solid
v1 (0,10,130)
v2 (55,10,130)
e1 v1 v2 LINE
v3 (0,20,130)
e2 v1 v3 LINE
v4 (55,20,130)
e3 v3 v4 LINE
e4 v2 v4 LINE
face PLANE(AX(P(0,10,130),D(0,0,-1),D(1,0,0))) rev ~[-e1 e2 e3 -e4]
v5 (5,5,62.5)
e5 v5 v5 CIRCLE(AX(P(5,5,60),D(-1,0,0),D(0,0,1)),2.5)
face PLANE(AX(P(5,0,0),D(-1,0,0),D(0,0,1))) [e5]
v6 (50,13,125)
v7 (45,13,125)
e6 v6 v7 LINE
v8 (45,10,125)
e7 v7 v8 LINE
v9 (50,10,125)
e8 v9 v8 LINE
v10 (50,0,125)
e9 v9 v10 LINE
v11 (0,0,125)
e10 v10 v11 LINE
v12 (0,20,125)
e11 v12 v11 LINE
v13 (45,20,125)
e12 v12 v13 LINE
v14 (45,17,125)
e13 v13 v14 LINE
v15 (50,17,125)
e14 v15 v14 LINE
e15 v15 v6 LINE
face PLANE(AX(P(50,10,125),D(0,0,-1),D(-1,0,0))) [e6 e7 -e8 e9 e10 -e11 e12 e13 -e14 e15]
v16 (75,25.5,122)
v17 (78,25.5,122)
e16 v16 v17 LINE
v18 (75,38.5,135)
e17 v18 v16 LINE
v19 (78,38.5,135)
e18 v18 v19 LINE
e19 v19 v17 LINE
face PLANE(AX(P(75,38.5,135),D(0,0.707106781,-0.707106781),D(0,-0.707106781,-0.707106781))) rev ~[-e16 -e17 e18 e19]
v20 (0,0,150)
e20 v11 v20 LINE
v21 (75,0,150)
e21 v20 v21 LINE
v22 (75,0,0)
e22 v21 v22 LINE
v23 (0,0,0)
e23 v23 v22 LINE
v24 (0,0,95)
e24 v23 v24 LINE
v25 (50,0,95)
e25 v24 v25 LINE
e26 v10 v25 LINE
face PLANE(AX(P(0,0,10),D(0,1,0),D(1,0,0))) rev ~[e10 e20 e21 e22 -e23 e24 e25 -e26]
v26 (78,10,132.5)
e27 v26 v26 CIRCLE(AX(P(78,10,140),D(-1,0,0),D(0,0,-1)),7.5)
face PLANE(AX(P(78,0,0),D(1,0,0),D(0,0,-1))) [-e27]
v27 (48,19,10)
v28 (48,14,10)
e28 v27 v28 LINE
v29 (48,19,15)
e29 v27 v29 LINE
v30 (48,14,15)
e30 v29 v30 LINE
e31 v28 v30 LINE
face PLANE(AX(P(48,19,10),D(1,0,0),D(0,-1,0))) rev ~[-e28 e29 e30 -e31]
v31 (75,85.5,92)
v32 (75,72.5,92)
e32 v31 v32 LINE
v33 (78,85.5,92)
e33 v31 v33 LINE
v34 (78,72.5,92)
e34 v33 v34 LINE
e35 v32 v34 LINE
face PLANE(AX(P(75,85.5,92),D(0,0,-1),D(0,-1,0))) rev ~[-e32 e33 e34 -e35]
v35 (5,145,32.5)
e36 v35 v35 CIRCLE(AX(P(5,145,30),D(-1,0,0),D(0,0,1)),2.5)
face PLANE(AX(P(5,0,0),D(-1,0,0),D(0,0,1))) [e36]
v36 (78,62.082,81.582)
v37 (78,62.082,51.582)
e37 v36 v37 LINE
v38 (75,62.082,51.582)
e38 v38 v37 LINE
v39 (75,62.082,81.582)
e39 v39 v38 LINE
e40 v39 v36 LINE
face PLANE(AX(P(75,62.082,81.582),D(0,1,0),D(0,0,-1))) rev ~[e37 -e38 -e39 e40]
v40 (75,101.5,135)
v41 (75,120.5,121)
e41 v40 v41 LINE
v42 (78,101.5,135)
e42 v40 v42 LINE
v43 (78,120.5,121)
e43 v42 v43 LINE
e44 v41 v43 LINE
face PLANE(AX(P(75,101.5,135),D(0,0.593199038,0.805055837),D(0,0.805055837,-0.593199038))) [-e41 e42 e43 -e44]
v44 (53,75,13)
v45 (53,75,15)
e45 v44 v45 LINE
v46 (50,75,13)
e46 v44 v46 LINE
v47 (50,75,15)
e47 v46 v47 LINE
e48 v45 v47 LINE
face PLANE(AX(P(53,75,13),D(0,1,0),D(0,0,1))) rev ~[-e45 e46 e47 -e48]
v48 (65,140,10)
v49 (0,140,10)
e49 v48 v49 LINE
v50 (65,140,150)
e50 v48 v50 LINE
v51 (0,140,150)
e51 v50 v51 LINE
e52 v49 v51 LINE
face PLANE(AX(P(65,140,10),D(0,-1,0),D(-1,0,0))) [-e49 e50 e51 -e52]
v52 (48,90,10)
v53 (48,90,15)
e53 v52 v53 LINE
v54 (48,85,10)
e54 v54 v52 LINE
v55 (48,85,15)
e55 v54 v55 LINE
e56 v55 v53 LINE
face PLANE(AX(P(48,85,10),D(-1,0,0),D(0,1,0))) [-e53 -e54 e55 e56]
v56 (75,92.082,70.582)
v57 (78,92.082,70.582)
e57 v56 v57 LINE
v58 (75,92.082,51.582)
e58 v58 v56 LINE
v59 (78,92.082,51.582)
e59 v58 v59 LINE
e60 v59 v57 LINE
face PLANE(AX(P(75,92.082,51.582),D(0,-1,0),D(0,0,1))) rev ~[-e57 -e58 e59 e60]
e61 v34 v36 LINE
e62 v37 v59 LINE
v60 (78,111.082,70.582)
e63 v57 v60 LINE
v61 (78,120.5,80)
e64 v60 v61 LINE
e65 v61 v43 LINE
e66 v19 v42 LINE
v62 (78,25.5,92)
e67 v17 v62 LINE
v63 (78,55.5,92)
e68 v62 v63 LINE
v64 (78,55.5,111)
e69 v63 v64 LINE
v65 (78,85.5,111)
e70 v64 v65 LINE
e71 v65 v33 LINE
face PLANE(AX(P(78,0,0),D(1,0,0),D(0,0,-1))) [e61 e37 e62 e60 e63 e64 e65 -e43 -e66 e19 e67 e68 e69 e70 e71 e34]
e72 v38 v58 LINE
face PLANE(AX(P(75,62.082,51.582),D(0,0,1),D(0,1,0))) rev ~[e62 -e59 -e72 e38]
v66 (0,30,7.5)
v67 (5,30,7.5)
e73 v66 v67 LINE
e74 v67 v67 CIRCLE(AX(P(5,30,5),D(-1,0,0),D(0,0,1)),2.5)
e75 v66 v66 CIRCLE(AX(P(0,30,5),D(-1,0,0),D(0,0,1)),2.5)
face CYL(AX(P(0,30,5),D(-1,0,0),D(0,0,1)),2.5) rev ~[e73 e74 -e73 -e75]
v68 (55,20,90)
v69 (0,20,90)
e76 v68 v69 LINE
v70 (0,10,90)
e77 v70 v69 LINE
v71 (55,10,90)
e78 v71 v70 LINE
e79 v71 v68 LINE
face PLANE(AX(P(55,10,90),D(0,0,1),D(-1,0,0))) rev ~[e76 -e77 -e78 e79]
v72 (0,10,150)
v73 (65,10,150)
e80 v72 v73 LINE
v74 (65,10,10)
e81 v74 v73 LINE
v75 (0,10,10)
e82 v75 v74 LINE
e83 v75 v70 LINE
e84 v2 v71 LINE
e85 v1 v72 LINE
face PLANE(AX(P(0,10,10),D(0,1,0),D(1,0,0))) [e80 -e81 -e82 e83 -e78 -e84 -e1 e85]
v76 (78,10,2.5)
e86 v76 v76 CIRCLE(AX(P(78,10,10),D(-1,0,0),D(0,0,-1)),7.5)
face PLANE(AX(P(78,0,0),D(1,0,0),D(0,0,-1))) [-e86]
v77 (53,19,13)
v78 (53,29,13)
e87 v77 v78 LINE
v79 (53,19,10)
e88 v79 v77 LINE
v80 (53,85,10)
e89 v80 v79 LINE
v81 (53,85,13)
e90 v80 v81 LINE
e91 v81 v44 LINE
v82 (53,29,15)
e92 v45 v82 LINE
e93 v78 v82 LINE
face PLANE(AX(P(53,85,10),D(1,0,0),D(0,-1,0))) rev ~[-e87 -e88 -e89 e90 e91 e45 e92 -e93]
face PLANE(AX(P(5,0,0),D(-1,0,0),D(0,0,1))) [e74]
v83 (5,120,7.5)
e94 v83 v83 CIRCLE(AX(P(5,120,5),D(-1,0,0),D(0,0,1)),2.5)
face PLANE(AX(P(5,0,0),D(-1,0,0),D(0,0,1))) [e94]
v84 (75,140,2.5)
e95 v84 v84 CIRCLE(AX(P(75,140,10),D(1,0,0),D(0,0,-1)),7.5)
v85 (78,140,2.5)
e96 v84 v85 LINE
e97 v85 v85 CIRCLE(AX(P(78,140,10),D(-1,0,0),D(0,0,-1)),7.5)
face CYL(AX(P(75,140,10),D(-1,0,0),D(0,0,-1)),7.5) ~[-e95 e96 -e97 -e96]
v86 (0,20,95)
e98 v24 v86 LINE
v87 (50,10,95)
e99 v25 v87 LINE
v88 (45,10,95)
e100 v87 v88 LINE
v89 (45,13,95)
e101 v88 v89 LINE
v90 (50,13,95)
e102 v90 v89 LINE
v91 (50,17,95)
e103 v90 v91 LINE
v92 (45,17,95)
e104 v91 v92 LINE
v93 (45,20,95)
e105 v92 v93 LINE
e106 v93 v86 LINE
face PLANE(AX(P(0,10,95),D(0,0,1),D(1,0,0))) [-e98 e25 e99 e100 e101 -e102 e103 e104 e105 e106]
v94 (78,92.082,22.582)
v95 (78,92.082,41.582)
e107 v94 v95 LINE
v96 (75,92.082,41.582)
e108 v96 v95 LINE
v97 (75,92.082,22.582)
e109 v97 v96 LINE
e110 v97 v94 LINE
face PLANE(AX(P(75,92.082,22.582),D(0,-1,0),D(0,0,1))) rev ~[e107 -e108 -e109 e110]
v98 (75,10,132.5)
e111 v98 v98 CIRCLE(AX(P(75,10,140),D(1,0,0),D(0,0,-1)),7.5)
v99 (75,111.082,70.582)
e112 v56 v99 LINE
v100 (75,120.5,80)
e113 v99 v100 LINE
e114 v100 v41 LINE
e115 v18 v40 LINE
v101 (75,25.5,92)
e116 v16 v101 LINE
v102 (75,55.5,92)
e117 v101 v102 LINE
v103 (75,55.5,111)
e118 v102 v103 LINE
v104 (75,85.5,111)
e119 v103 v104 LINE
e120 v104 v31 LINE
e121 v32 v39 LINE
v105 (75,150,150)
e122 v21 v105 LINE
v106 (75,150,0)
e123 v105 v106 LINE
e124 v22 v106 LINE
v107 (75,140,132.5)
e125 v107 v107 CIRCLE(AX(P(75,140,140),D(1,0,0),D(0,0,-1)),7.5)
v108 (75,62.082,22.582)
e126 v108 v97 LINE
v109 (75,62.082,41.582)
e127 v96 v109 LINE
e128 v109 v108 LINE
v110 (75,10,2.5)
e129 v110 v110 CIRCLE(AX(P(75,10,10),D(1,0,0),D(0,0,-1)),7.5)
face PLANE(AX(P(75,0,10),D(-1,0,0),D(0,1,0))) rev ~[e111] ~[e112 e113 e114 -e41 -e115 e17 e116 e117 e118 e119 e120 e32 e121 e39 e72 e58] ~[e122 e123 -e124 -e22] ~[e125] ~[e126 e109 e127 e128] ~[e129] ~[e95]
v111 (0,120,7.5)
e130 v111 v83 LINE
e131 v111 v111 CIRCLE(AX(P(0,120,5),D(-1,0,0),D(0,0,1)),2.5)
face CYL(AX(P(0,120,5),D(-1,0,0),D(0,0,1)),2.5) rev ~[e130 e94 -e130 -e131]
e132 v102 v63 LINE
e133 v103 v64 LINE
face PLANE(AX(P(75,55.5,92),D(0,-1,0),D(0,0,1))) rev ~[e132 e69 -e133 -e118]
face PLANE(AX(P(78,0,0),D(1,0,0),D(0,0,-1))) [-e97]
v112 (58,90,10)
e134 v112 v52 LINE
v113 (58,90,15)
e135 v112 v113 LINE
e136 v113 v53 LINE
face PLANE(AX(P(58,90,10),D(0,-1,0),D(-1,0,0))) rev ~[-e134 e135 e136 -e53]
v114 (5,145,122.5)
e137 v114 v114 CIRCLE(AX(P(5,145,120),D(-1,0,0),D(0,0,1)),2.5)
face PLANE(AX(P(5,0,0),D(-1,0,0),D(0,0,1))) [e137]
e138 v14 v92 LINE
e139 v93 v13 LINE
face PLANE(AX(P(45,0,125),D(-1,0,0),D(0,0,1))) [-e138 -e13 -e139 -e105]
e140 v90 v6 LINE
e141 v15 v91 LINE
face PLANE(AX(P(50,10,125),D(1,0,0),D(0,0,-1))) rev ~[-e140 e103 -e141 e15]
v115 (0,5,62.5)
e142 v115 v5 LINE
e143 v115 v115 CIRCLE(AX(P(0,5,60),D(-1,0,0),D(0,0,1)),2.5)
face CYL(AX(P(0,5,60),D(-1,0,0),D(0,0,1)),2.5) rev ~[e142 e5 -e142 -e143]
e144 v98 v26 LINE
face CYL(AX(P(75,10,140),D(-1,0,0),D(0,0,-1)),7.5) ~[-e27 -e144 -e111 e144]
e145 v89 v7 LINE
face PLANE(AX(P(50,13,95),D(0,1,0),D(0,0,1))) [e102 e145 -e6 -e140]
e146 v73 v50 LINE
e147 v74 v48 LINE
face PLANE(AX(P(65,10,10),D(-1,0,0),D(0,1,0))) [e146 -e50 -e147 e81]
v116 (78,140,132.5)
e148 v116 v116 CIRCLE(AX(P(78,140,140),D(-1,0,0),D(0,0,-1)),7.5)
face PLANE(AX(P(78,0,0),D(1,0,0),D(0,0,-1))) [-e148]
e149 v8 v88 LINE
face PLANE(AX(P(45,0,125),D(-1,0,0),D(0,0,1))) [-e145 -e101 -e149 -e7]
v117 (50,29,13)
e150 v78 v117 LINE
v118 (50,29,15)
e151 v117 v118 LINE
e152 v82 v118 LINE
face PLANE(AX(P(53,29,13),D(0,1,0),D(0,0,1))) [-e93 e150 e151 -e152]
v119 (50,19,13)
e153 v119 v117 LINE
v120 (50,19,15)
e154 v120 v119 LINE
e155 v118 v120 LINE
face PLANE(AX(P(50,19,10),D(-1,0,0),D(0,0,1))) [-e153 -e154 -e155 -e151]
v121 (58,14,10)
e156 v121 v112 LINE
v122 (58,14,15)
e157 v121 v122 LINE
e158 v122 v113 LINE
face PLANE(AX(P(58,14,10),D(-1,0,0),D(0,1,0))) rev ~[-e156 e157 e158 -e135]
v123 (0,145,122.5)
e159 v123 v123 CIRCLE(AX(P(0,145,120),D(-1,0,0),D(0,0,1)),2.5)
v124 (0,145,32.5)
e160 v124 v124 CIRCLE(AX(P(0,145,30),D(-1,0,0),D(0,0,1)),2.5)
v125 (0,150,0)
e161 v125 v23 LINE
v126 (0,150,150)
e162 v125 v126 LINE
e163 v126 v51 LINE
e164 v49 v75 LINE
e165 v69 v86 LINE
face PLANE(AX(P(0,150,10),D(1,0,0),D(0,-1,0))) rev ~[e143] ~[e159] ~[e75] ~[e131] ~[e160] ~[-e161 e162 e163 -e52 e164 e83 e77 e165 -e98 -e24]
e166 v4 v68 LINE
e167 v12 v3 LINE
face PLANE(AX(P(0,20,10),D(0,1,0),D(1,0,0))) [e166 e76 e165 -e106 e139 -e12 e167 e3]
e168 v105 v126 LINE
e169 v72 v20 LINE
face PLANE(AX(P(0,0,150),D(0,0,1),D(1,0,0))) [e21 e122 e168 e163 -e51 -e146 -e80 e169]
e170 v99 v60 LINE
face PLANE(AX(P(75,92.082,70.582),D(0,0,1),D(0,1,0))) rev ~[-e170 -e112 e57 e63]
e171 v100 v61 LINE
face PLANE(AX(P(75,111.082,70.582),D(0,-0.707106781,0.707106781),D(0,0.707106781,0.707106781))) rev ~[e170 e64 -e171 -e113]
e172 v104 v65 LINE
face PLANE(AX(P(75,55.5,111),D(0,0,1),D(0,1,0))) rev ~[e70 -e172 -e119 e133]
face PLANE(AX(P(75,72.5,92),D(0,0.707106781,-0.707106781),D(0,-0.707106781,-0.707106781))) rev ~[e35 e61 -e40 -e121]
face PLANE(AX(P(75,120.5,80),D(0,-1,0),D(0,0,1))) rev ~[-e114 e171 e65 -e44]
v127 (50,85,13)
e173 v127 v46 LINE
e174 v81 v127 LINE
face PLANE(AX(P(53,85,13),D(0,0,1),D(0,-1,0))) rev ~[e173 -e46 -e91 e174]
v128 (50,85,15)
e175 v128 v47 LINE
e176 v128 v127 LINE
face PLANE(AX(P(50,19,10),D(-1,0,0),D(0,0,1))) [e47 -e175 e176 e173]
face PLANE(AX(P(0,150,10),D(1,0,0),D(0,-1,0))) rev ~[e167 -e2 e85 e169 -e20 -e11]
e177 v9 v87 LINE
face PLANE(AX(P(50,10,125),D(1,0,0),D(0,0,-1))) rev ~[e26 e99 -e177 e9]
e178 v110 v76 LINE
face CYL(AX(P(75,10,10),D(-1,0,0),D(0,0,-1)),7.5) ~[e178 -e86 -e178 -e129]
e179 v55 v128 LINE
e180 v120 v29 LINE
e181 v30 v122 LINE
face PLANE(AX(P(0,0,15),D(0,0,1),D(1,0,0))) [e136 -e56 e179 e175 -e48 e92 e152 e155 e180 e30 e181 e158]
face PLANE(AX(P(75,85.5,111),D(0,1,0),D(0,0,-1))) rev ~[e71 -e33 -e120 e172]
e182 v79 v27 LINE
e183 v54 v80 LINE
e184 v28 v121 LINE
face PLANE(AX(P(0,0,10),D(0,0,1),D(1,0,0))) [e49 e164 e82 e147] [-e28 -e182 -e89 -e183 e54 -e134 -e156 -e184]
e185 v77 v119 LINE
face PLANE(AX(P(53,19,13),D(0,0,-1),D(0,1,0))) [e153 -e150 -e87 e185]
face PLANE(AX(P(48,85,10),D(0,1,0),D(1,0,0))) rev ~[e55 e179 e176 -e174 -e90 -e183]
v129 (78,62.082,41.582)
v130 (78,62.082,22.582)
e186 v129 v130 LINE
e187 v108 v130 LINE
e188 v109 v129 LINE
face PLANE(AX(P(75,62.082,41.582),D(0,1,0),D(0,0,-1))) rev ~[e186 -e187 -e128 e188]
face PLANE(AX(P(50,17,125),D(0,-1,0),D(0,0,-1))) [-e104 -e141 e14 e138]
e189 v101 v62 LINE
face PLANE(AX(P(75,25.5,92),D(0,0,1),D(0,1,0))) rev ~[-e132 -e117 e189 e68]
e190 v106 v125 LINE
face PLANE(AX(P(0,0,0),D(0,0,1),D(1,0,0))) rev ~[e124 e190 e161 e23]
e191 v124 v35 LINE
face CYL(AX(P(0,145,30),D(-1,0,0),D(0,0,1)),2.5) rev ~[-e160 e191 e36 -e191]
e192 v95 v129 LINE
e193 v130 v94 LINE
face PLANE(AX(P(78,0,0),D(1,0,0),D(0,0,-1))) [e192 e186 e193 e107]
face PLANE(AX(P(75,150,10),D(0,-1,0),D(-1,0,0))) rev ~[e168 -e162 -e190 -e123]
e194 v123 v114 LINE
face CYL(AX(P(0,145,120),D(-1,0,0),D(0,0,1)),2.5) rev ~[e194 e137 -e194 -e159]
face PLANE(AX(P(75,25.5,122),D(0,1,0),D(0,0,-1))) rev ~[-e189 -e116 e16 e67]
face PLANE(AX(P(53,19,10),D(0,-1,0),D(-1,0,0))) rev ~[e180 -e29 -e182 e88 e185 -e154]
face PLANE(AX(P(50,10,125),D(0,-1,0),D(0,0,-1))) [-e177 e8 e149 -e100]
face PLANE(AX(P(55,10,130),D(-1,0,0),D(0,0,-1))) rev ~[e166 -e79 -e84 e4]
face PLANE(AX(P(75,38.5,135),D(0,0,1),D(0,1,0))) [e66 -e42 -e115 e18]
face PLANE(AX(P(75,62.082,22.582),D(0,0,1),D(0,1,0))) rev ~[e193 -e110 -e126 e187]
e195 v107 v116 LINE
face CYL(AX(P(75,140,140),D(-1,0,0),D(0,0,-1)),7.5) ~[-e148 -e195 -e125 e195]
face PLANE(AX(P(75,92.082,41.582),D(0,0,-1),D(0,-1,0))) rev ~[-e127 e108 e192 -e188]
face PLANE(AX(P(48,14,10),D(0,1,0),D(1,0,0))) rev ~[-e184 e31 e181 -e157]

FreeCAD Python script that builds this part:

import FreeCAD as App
import Part
import Sketcher
from FreeCAD import Vector

doc = App.newDocument("Part")
body = doc.addObject("PartDesign::Body", "Body")

# Sketch on XY plane
sketch1 = body.newObject("Sketcher::SketchObject", "Sketch")
sketch1.AttachmentSupport = (doc.getObject("XY_Plane"), [""])
sketch1.MapMode = "FlatFace"
sketch1.addGeometry(Part.LineSegment(Vector(0, 150, 0), Vector(0, 0, 0)), False)
sketch1.addGeometry(Part.LineSegment(Vector(0, 0, 0), Vector(75, 0, 0)), False)
sketch1.addGeometry(Part.LineSegment(Vector(75, 0, 0), Vector(75, 150, 0)), False)
sketch1.addGeometry(Part.LineSegment(Vector(75, 150, 0), Vector(0, 150, 0)), False)
sketch1.addConstraint(Sketcher.Constraint("Coincident", 0, 2, 1, 1))
sketch1.addConstraint(Sketcher.Constraint("Coincident", 1, 2, 2, 1))
sketch1.addConstraint(Sketcher.Constraint("Coincident", 2, 2, 3, 1))
sketch1.addConstraint(Sketcher.Constraint("Coincident", 3, 2, 0, 1))
sketch1.addConstraint(Sketcher.Constraint("Vertical", 0))
sketch1.addConstraint(Sketcher.Constraint("Horizontal", 1))
sketch1.addConstraint(Sketcher.Constraint("Vertical", 2))
sketch1.addConstraint(Sketcher.Constraint("Horizontal", 3))
sketch1.addConstraint(Sketcher.Constraint("Coincident", 0, 2, -1, 1))
sketch1.addConstraint(Sketcher.Constraint("DistanceX", 1, 1, 1, 2, 75.0))
sketch1.addConstraint(Sketcher.Constraint("DistanceY", 0, 2, 0, 1, 150.0))
pad1 = body.newObject("PartDesign::Pad", "Pad")
pad1.Profile = sketch1
pad1.Length = 10

# Sketch on XY plane
sketch2 = body.newObject("Sketcher::SketchObject", "Sketch001")
sketch2.AttachmentSupport = (doc.getObject("XY_Plane"), [""])
sketch2.MapMode = "FlatFace"
sketch2.AttachmentOffset = App.Placement(Vector(0, 0, 10), App.Rotation())
sketch2.addGeometry(Part.LineSegment(Vector(48, 90, 0), Vector(48, 85, 0)), False)
sketch2.addGeometry(Part.LineSegment(Vector(48, 85, 0), Vector(53, 85, 0)), False)
sketch2.addGeometry(Part.LineSegment(Vector(53, 85, 0), Vector(53, 19, 0)), False)
sketch2.addGeometry(Part.LineSegment(Vector(53, 19, 0), Vector(48, 19, 0)), False)
sketch2.addGeometry(Part.LineSegment(Vector(48, 19, 0), Vector(48, 14, 0)), False)
sketch2.addGeometry(Part.LineSegment(Vector(48, 14, 0), Vector(58, 14, 0)), False)
sketch2.addGeometry(Part.LineSegment(Vector(58, 14, 0), Vector(58, 90, 0)), False)
sketch2.addGeometry(Part.LineSegment(Vector(58, 90, 0), Vector(48, 90, 0)), False)
sketch2.addConstraint(Sketcher.Constraint("Coincident", 0, 2, 1, 1))
sketch2.addConstraint(Sketcher.Constraint("Coincident", 1, 2, 2, 1))
sketch2.addConstraint(Sketcher.Constraint("Coincident", 2, 2, 3, 1))
sketch2.addConstraint(Sketcher.Constraint("Coincident", 3, 2, 4, 1))
sketch2.addConstraint(Sketcher.Constraint("Coincident", 4, 2, 5, 1))
sketch2.addConstraint(Sketcher.Constraint("Coincident", 5, 2, 6, 1))
sketch2.addConstraint(Sketcher.Constraint("Coincident", 6, 2, 7, 1))
sketch2.addConstraint(Sketcher.Constraint("Coincident", 7, 2, 0, 1))
sketch2.addConstraint(Sketcher.Constraint("Vertical", 0))
sketch2.addConstraint(Sketcher.Constraint("Horizontal", 1))
sketch2.addConstraint(Sketcher.Constraint("Vertical", 2))
sketch2.addConstraint(Sketcher.Constraint("Horizontal", 3))
sketch2.addConstraint(Sketcher.Constraint("Vertical", 4))
sketch2.addConstraint(Sketcher.Constraint("Horizontal", 5))
sketch2.addConstraint(Sketcher.Constraint("Vertical", 6))
sketch2.addConstraint(Sketcher.Constraint("Horizontal", 7))
sketch2.addConstraint(Sketcher.Constraint("Vertical", 0, 2, 3, 2))
sketch2.addConstraint(Sketcher.Constraint("Equal", 3, 0))
sketch2.addConstraint(Sketcher.Constraint("Equal", 0, 4))
sketch2.addConstraint(Sketcher.Constraint("DistanceX", 1, 1, 1, 2, 5.0))
sketch2.addConstraint(Sketcher.Constraint("DistanceX", 5, 1, 5, 2, 10.0))
sketch2.addConstraint(Sketcher.Constraint("DistanceY", 2, 2, 2, 1, 66.0))
sketch2.addConstraint(Sketcher.Constraint("DistanceX", -1, 1, 1, 2, 53.0))
sketch2.addConstraint(Sketcher.Constraint("DistanceY", -1, 1, 0, 2, 85.0))
pad2 = body.newObject("PartDesign::Pad", "Pad001")
pad2.Profile = sketch2
pad2.Length = 5

# Sketch on YZ plane
sketch3 = body.newObject("Sketcher::SketchObject", "Sketch002")
sketch3.AttachmentSupport = (doc.getObject("YZ_Plane"), [""])
sketch3.MapMode = "FlatFace"
sketch3.AttachmentOffset = App.Placement(Vector(0, 0, 53), App.Rotation())
sketch3.addGeometry(Part.LineSegment(Vector(19, 15, 0), Vector(29, 15, 0)), False)
sketch3.addGeometry(Part.LineSegment(Vector(29, 15, 0), Vector(29, 13, 0)), False)
sketch3.addGeometry(Part.LineSegment(Vector(29, 13, 0), Vector(19, 13, 0)), False)
sketch3.addGeometry(Part.LineSegment(Vector(19, 13, 0), Vector(19, 15, 0)), False)
sketch3.addGeometry(Part.LineSegment(Vector(75, 15, 0), Vector(85, 15, 0)), False)
sketch3.addGeometry(Part.LineSegment(Vector(85, 15, 0), Vector(85, 13, 0)), False)
sketch3.addGeometry(Part.LineSegment(Vector(85, 13, 0), Vector(75, 13, 0)), False)
sketch3.addGeometry(Part.LineSegment(Vector(75, 13, 0), Vector(75, 15, 0)), False)
sketch3.addConstraint(Sketcher.Constraint("Coincident", 0, 2, 1, 1))
sketch3.addConstraint(Sketcher.Constraint("Coincident", 1, 2, 2, 1))
sketch3.addConstraint(Sketcher.Constraint("Coincident", 2, 2, 3, 1))
sketch3.addConstraint(Sketcher.Constraint("Coincident", 3, 2, 0, 1))
sketch3.addConstraint(Sketcher.Constraint("Coincident", 4, 2, 5, 1))
sketch3.addConstraint(Sketcher.Constraint("Coincident", 5, 2, 6, 1))
sketch3.addConstraint(Sketcher.Constraint("Coincident", 6, 2, 7, 1))
sketch3.addConstraint(Sketcher.Constraint("Coincident", 7, 2, 4, 1))
sketch3.addConstraint(Sketcher.Constraint("Horizontal", 0))
sketch3.addConstraint(Sketcher.Constraint("Vertical", 1))
sketch3.addConstraint(Sketcher.Constraint("Horizontal", 2))
sketch3.addConstraint(Sketcher.Constraint("Vertical", 3))
sketch3.addConstraint(Sketcher.Constraint("Horizontal", 4))
sketch3.addConstraint(Sketcher.Constraint("Vertical", 5))
sketch3.addConstraint(Sketcher.Constraint("Horizontal", 6))
sketch3.addConstraint(Sketcher.Constraint("Vertical", 7))
sketch3.addConstraint(Sketcher.Constraint("Horizontal", 3, 2, 4, 2))
sketch3.addConstraint(Sketcher.Constraint("Horizontal", 2, 2, 5, 2))
sketch3.addConstraint(Sketcher.Constraint("Equal", 2, 4))
sketch3.addConstraint(Sketcher.Constraint("DistanceX", 0, 1, 0, 2, 10.0))
sketch3.addConstraint(Sketcher.Constraint("DistanceY", 1, 2, 1, 1, 2.0))
sketch3.addConstraint(Sketcher.Constraint("DistanceX", -1, 1, 0, 2, 29.0))
sketch3.addConstraint(Sketcher.Constraint("DistanceY", -1, 1, 0, 2, 15.0))
sketch3.addConstraint(Sketcher.Constraint("DistanceX", -1, 1, 4, 2, 85.0))
pad3 = body.newObject("PartDesign::Pad", "Pad002")
pad3.Profile = sketch3
pad3.Length = 3
pad3.Reversed = True

# Sketch on XY plane
sketch4 = body.newObject("Sketcher::SketchObject", "Sketch003")
sketch4.AttachmentSupport = (doc.getObject("XY_Plane"), [""])
sketch4.MapMode = "FlatFace"
sketch4.AttachmentOffset = App.Placement(Vector(0, 0, 10), App.Rotation())
sketch4.addGeometry(Part.LineSegment(Vector(75, 150, 0), Vector(0, 150, 0)), False)
sketch4.addGeometry(Part.LineSegment(Vector(0, 150, 0), Vector(0, 140, 0)), False)
sketch4.addGeometry(Part.LineSegment(Vector(0, 140, 0), Vector(65, 140, 0)), False)
sketch4.addGeometry(Part.LineSegment(Vector(65, 140, 0), Vector(65, 10, 0)), False)
sketch4.addGeometry(Part.LineSegment(Vector(65, 10, 0), Vector(0, 10, 0)), False)
sketch4.addGeometry(Part.LineSegment(Vector(0, 10, 0), Vector(0, 0, 0)), False)
sketch4.addGeometry(Part.LineSegment(Vector(0, 0, 0), Vector(75, 0, 0)), False)
sketch4.addGeometry(Part.LineSegment(Vector(75, 0, 0), Vector(75, 150, 0)), False)
sketch4.addConstraint(Sketcher.Constraint("Coincident", 0, 2, 1, 1))
sketch4.addConstraint(Sketcher.Constraint("Coincident", 1, 2, 2, 1))
sketch4.addConstraint(Sketcher.Constraint("Coincident", 2, 2, 3, 1))
sketch4.addConstraint(Sketcher.Constraint("Coincident", 3, 2, 4, 1))
sketch4.addConstraint(Sketcher.Constraint("Coincident", 4, 2, 5, 1))
sketch4.addConstraint(Sketcher.Constraint("Coincident", 5, 2, 6, 1))
sketch4.addConstraint(Sketcher.Constraint("Coincident", 6, 2, 7, 1))
sketch4.addConstraint(Sketcher.Constraint("Coincident", 7, 2, 0, 1))
sketch4.addConstraint(Sketcher.Constraint("Horizontal", 0))
sketch4.addConstraint(Sketcher.Constraint("Vertical", 1))
sketch4.addConstraint(Sketcher.Constraint("Horizontal", 2))
sketch4.addConstraint(Sketcher.Constraint("Vertical", 3))
sketch4.addConstraint(Sketcher.Constraint("Horizontal", 4))
sketch4.addConstraint(Sketcher.Constraint("Vertical", 5))
sketch4.addConstraint(Sketcher.Constraint("Horizontal", 6))
sketch4.addConstraint(Sketcher.Constraint("Vertical", 7))
sketch4.addConstraint(Sketcher.Constraint("Coincident", 5, 2, -1, 1))
sketch4.addConstraint(Sketcher.Constraint("PointOnObject", 0, 2, -2))
sketch4.addConstraint(Sketcher.Constraint("Equal", 1, 5))
sketch4.addConstraint(Sketcher.Constraint("DistanceY", 1, 2, 1, 1, 10.0))
sketch4.addConstraint(Sketcher.Constraint("DistanceX", 3, 2, 6, 2, 10.0))
sketch4.addConstraint(Sketcher.Constraint("DistanceX", 0, 2, 0, 1, 75.0))
sketch4.addConstraint(Sketcher.Constraint("DistanceY", 3, 2, 3, 1, 130.0))
pad4 = body.newObject("PartDesign::Pad", "Pad003")
pad4.Profile = sketch4
pad4.Length = 140

# Sketch on XZ plane
sketch5 = body.newObject("Sketcher::SketchObject", "Sketch004")
sketch5.AttachmentSupport = (doc.getObject("XZ_Plane"), [""])
sketch5.MapMode = "FlatFace"
sketch5.AttachmentOffset = App.Placement(Vector(0, 0, -10), App.Rotation())
sketch5.addGeometry(Part.LineSegment(Vector(55, 90, 0), Vector(0, 90, 0)), False)
sketch5.addGeometry(Part.LineSegment(Vector(0, 90, 0), Vector(0, 95, 0)), False)
sketch5.addGeometry(Part.LineSegment(Vector(0, 95, 0), Vector(50, 95, 0)), False)
sketch5.addGeometry(Part.LineSegment(Vector(50, 95, 0), Vector(50, 125, 0)), False)
sketch5.addGeometry(Part.LineSegment(Vector(50, 125, 0), Vector(0, 125, 0)), False)
sketch5.addGeometry(Part.LineSegment(Vector(0, 125, 0), Vector(0, 130, 0)), False)
sketch5.addGeometry(Part.LineSegment(Vector(0, 130, 0), Vector(55, 130, 0)), False)
sketch5.addGeometry(Part.LineSegment(Vector(55, 130, 0), Vector(55, 90, 0)), False)
sketch5.addConstraint(Sketcher.Constraint("Coincident", 0, 2, 1, 1))
sketch5.addConstraint(Sketcher.Constraint("Coincident", 1, 2, 2, 1))
sketch5.addConstraint(Sketcher.Constraint("Coincident", 2, 2, 3, 1))
sketch5.addConstraint(Sketcher.Constraint("Coincident", 3, 2, 4, 1))
sketch5.addConstraint(Sketcher.Constraint("Coincident", 4, 2, 5, 1))
sketch5.addConstraint(Sketcher.Constraint("Coincident", 5, 2, 6, 1))
sketch5.addConstraint(Sketcher.Constraint("Coincident", 6, 2, 7, 1))
sketch5.addConstraint(Sketcher.Constraint("Coincident", 7, 2, 0, 1))
sketch5.addConstraint(Sketcher.Constraint("Horizontal", 0))
sketch5.addConstraint(Sketcher.Constraint("Vertical", 1))
sketch5.addConstraint(Sketcher.Constraint("Horizontal", 2))
sketch5.addConstraint(Sketcher.Constraint("Vertical", 3))
sketch5.addConstraint(Sketcher.Constraint("Horizontal", 4))
sketch5.addConstraint(Sketcher.Constraint("Vertical", 5))
sketch5.addConstraint(Sketcher.Constraint("Horizontal", 6))
sketch5.addConstraint(Sketcher.Constraint("Vertical", 7))
sketch5.addConstraint(Sketcher.Constraint("PointOnObject", 0, 2, -2))
sketch5.addConstraint(Sketcher.Constraint("PointOnObject", 4, 2, -2))
sketch5.addConstraint(Sketcher.Constraint("Equal", 1, 5))
sketch5.addConstraint(Sketcher.Constraint("DistanceX", 0, 2, 0, 1, 55.0))
sketch5.addConstraint(Sketcher.Constraint("DistanceX", 2, 1, 2, 2, 50.0))
sketch5.addConstraint(Sketcher.Constraint("DistanceY", 1, 1, 1, 2, 5.0))
sketch5.addConstraint(Sketcher.Constraint("DistanceY", 3, 1, 3, 2, 30.0))
sketch5.addConstraint(Sketcher.Constraint("DistanceY", -1, 1, 0, 2, 90.0))
pad5 = body.newObject("PartDesign::Pad", "Pad004")
pad5.Profile = sketch5
pad5.Length = 10
pad5.Reversed = True

# Sketch on XZ plane
sketch6 = body.newObject("Sketcher::SketchObject", "Sketch005")
sketch6.AttachmentSupport = (doc.getObject("XZ_Plane"), [""])
sketch6.MapMode = "FlatFace"
sketch6.AttachmentOffset = App.Placement(Vector(0, 0, -10), App.Rotation())
sketch6.addGeometry(Part.LineSegment(Vector(0, 125, 0), Vector(50, 125, 0)), False)
sketch6.addGeometry(Part.LineSegment(Vector(50, 125, 0), Vector(50, 95, 0)), False)
sketch6.addGeometry(Part.LineSegment(Vector(50, 95, 0), Vector(0, 95, 0)), False)
sketch6.addGeometry(Part.LineSegment(Vector(0, 95, 0), Vector(0, 125, 0)), False)
sketch6.addConstraint(Sketcher.Constraint("Coincident", 0, 2, 1, 1))
sketch6.addConstraint(Sketcher.Constraint("Coincident", 1, 2, 2, 1))
sketch6.addConstraint(Sketcher.Constraint("Coincident", 2, 2, 3, 1))
sketch6.addConstraint(Sketcher.Constraint("Coincident", 3, 2, 0, 1))
sketch6.addConstraint(Sketcher.Constraint("Horizontal", 0))
sketch6.addConstraint(Sketcher.Constraint("Vertical", 1))
sketch6.addConstraint(Sketcher.Constraint("Horizontal", 2))
sketch6.addConstraint(Sketcher.Constraint("Vertical", 3))
sketch6.addConstraint(Sketcher.Constraint("PointOnObject", 2, 2, -2))
sketch6.addConstraint(Sketcher.Constraint("DistanceX", 0, 1, 0, 2, 50.0))
sketch6.addConstraint(Sketcher.Constraint("DistanceY", 1, 2, 1, 1, 30.0))
sketch6.addConstraint(Sketcher.Constraint("DistanceY", -1, 1, 0, 2, 125.0))
pocket1 = body.newObject("PartDesign::Pocket", "Pocket")
pocket1.Profile = sketch6
pocket1.Length = 10
pocket1.Reversed = True

# Sketch on YZ plane
sketch7 = body.newObject("Sketcher::SketchObject", "Sketch006")
sketch7.AttachmentSupport = (doc.getObject("YZ_Plane"), [""])
sketch7.MapMode = "FlatFace"
sketch7.AttachmentOffset = App.Placement(Vector(0, 0, 50), App.Rotation())
sketch7.addGeometry(Part.LineSegment(Vector(13, 95, 0), Vector(10, 95, 0)), False)
sketch7.addGeometry(Part.LineSegment(Vector(10, 95, 0), Vector(10, 125, 0)), False)
sketch7.addGeometry(Part.LineSegment(Vector(10, 125, 0), Vector(13, 125, 0)), False)
sketch7.addGeometry(Part.LineSegment(Vector(13, 125, 0), Vector(13, 95, 0)), False)
sketch7.addGeometry(Part.LineSegment(Vector(20, 95, 0), Vector(17, 95, 0)), False)
sketch7.addGeometry(Part.LineSegment(Vector(17, 95, 0), Vector(17, 125, 0)), False)
sketch7.addGeometry(Part.LineSegment(Vector(17, 125, 0), Vector(20, 125, 0)), False)
sketch7.addGeometry(Part.LineSegment(Vector(20, 125, 0), Vector(20, 95, 0)), False)
sketch7.addConstraint(Sketcher.Constraint("Coincident", 0, 2, 1, 1))
sketch7.addConstraint(Sketcher.Constraint("Coincident", 1, 2, 2, 1))
sketch7.addConstraint(Sketcher.Constraint("Coincident", 2, 2, 3, 1))
sketch7.addConstraint(Sketcher.Constraint("Coincident", 3, 2, 0, 1))
sketch7.addConstraint(Sketcher.Constraint("Coincident", 4, 2, 5, 1))
sketch7.addConstraint(Sketcher.Constraint("Coincident", 5, 2, 6, 1))
sketch7.addConstraint(Sketcher.Constraint("Coincident", 6, 2, 7, 1))
sketch7.addConstraint(Sketcher.Constraint("Coincident", 7, 2, 4, 1))
sketch7.addConstraint(Sketcher.Constraint("Horizontal", 0))
sketch7.addConstraint(Sketcher.Constraint("Vertical", 1))
sketch7.addConstraint(Sketcher.Constraint("Horizontal", 2))
sketch7.addConstraint(Sketcher.Constraint("Vertical", 3))
sketch7.addConstraint(Sketcher.Constraint("Horizontal", 4))
sketch7.addConstraint(Sketcher.Constraint("Vertical", 5))
sketch7.addConstraint(Sketcher.Constraint("Horizontal", 6))
sketch7.addConstraint(Sketcher.Constraint("Vertical", 7))
sketch7.addConstraint(Sketcher.Constraint("Horizontal", 3, 2, 4, 2))
sketch7.addConstraint(Sketcher.Constraint("Horizontal", 2, 2, 5, 2))
sketch7.addConstraint(Sketcher.Constraint("Equal", 2, 4))
sketch7.addConstraint(Sketcher.Constraint("DistanceX", 0, 2, 0, 1, 3.0))
sketch7.addConstraint(Sketcher.Constraint("DistanceY", 1, 1, 1, 2, 30.0))
sketch7.addConstraint(Sketcher.Constraint("DistanceX", -1, 1, 0, 2, 10.0))
sketch7.addConstraint(Sketcher.Constraint("DistanceY", -1, 1, 0, 2, 95.0))
sketch7.addConstraint(Sketcher.Constraint("DistanceX", -1, 1, 4, 2, 17.0))
pad6 = body.newObject("PartDesign::Pad", "Pad005")
pad6.Profile = sketch7
pad6.Length = 5
pad6.Reversed = True

# Sketch on YZ plane
sketch8 = body.newObject("Sketcher::SketchObject", "Sketch007")
sketch8.AttachmentSupport = (doc.getObject("YZ_Plane"), [""])
sketch8.MapMode = "FlatFace"
sketch8.addGeometry(Part.Circle(Vector(120, 5, 0), Vector(0, 0, 1), 2.5), False)
sketch8.addGeometry(Part.Circle(Vector(30, 5, 0), Vector(0, 0, 1), 2.5), False)
sketch8.addGeometry(Part.Circle(Vector(5, 60, 0), Vector(0, 0, 1), 2.5), False)
sketch8.addGeometry(Part.Circle(Vector(145, 120, 0), Vector(0, 0, 1), 2.5), False)
sketch8.addGeometry(Part.Circle(Vector(145, 30, 0), Vector(0, 0, 1), 2.5), False)
sketch8.addConstraint(Sketcher.Constraint("Equal", 0, 1))
sketch8.addConstraint(Sketcher.Constraint("Equal", 1, 2))
sketch8.addConstraint(Sketcher.Constraint("Equal", 2, 3))
sketch8.addConstraint(Sketcher.Constraint("Equal", 3, 4))
sketch8.addConstraint(Sketcher.Constraint("Horizontal", 0, 3, 1, 3))
sketch8.addConstraint(Sketcher.Constraint("Vertical", 3, 3, 4, 3))
sketch8.addConstraint(Sketcher.Constraint("Diameter", 0, 5.0))
sketch8.addConstraint(Sketcher.Constraint("DistanceY", -1, 1, 0, 3, 5.0))
sketch8.addConstraint(Sketcher.Constraint("DistanceX", -1, 1, 1, 3, 30.0))
sketch8.addConstraint(Sketcher.Constraint("DistanceX", -1, 1, 2, 3, 5.0))
sketch8.addConstraint(Sketcher.Constraint("DistanceY", -1, 1, 2, 3, 60.0))
sketch8.addConstraint(Sketcher.Constraint("DistanceY", -1, 1, 4, 3, 30.0))
sketch8.addConstraint(Sketcher.Constraint("DistanceY", 2, 3, 3, 3, 60.0))
sketch8.addConstraint(Sketcher.Constraint("DistanceX", -1, 1, 0, 3, 120.0))
sketch8.addConstraint(Sketcher.Constraint("DistanceX", -1, 1, 3, 3, 145.0))
pocket2 = body.newObject("PartDesign::Pocket", "Pocket001")
pocket2.Profile = sketch8
pocket2.Length = 5
pocket2.Reversed = True

# Sketch on YZ plane
sketch9 = body.newObject("Sketcher::SketchObject", "Sketch008")
sketch9.AttachmentSupport = (doc.getObject("YZ_Plane"), [""])
sketch9.MapMode = "FlatFace"
sketch9.AttachmentOffset = App.Placement(Vector(0, 0, 75), App.Rotation())
sketch9.addGeometry(Part.LineSegment(Vector(25.5, 122, 0), Vector(25.5, 92, 0)), False)
sketch9.addGeometry(Part.LineSegment(Vector(25.5, 92, 0), Vector(55.5, 92, 0)), False)
sketch9.addGeometry(Part.LineSegment(Vector(55.5, 92, 0), Vector(55.5, 111, 0)), False)
sketch9.addGeometry(Part.LineSegment(Vector(55.5, 111, 0), Vector(85.5, 111, 0)), False)
sketch9.addGeometry(Part.LineSegment(Vector(85.5, 111, 0), Vector(85.5, 92, 0)), False)
sketch9.addGeometry(Part.LineSegment(Vector(85.5, 92, 0), Vector(72.5, 92, 0)), False)
sketch9.addGeometry(Part.LineSegment(Vector(72.5, 92, 0), Vector(62.082, 81.582, 0)), False)
sketch9.addGeometry(Part.LineSegment(Vector(62.082, 81.582, 0), Vector(62.082, 51.582, 0)), False)
sketch9.addGeometry(Part.LineSegment(Vector(62.082, 51.582, 0), Vector(92.082, 51.582, 0)), False)
sketch9.addGeometry(Part.LineSegment(Vector(92.082, 51.582, 0), Vector(92.082, 70.582, 0)), False)
sketch9.addGeometry(Part.LineSegment(Vector(92.082, 70.582, 0), Vector(111.082, 70.582, 0)), False)
sketch9.addGeometry(Part.LineSegment(Vector(111.082, 70.582, 0), Vector(120.5, 80, 0)), False)
sketch9.addGeometry(Part.LineSegment(Vector(120.5, 80, 0), Vector(120.5, 121, 0)), False)
sketch9.addGeometry(Part.LineSegment(Vector(120.5, 121, 0), Vector(101.5, 135, 0)), False)
sketch9.addGeometry(Part.LineSegment(Vector(101.5, 135, 0), Vector(38.5, 135, 0)), False)
sketch9.addGeometry(Part.LineSegment(Vector(38.5, 135, 0), Vector(25.5, 122, 0)), False)
sketch9.addGeometry(Part.LineSegment(Vector(92.082, 41.582, 0), Vector(62.082, 41.582, 0)), False)
sketch9.addGeometry(Part.LineSegment(Vector(62.082, 41.582, 0), Vector(62.082, 22.582, 0)), False)
sketch9.addGeometry(Part.LineSegment(Vector(62.082, 22.582, 0), Vector(92.082, 22.582, 0)), False)
sketch9.addGeometry(Part.LineSegment(Vector(92.082, 22.582, 0), Vector(92.082, 41.582, 0)), False)
sketch9.addGeometry(Part.Circle(Vector(10, 140, 0), Vector(0, 0, 1), 7.5), False)
sketch9.addGeometry(Part.Circle(Vector(140, 140, 0), Vector(0, 0, 1), 7.5), False)
sketch9.addGeometry(Part.Circle(Vector(140, 10, 0), Vector(0, 0, 1), 7.5), False)
sketch9.addGeometry(Part.Circle(Vector(10, 10, 0), Vector(0, 0, 1), 7.5), False)
sketch9.addConstraint(Sketcher.Constraint("Coincident", 0, 2, 1, 1))
sketch9.addConstraint(Sketcher.Constraint("Coincident", 1, 2, 2, 1))
sketch9.addConstraint(Sketcher.Constraint("Coincident", 2, 2, 3, 1))
sketch9.addConstraint(Sketcher.Constraint("Coincident", 3, 2, 4, 1))
sketch9.addConstraint(Sketcher.Constraint("Coincident", 4, 2, 5, 1))
sketch9.addConstraint(Sketcher.Constraint("Coincident", 5, 2, 6, 1))
sketch9.addConstraint(Sketcher.Constraint("Coincident", 6, 2, 7, 1))
sketch9.addConstraint(Sketcher.Constraint("Coincident", 7, 2, 8, 1))
sketch9.addConstraint(Sketcher.Constraint("Coincident", 8, 2, 9, 1))
sketch9.addConstraint(Sketcher.Constraint("Coincident", 9, 2, 10, 1))
sketch9.addConstraint(Sketcher.Constraint("Coincident", 10, 2, 11, 1))
sketch9.addConstraint(Sketcher.Constraint("Coincident", 11, 2, 12, 1))
sketch9.addConstraint(Sketcher.Constraint("Coincident", 12, 2, 13, 1))
sketch9.addConstraint(Sketcher.Constraint("Coincident", 13, 2, 14, 1))
sketch9.addConstraint(Sketcher.Constraint("Coincident", 14, 2, 15, 1))
sketch9.addConstraint(Sketcher.Constraint("Coincident", 15, 2, 0, 1))
sketch9.addConstraint(Sketcher.Constraint("Coincident", 16, 2, 17, 1))
sketch9.addConstraint(Sketcher.Constraint("Coincident", 17, 2, 18, 1))
sketch9.addConstraint(Sketcher.Constraint("Coincident", 18, 2, 19, 1))
sketch9.addConstraint(Sketcher.Constraint("Coincident", 19, 2, 16, 1))
sketch9.addConstraint(Sketcher.Constraint("Vertical", 0))
sketch9.addConstraint(Sketcher.Constraint("Horizontal", 1))
sketch9.addConstraint(Sketcher.Constraint("Vertical", 2))
sketch9.addConstraint(Sketcher.Constraint("Horizontal", 3))
sketch9.addConstraint(Sketcher.Constraint("Vertical", 4))
sketch9.addConstraint(Sketcher.Constraint("Horizontal", 5))
sketch9.addConstraint(Sketcher.Constraint("Vertical", 7))
sketch9.addConstraint(Sketcher.Constraint("Horizontal", 8))
sketch9.addConstraint(Sketcher.Constraint("Vertical", 9))
sketch9.addConstraint(Sketcher.Constraint("Horizontal", 10))
sketch9.addConstraint(Sketcher.Constraint("Vertical", 12))
sketch9.addConstraint(Sketcher.Constraint("Horizontal", 14))
sketch9.addConstraint(Sketcher.Constraint("Horizontal", 16))
sketch9.addConstraint(Sketcher.Constraint("Vertical", 17))
sketch9.addConstraint(Sketcher.Constraint("Horizontal", 18))
sketch9.addConstraint(Sketcher.Constraint("Vertical", 19))
sketch9.addConstraint(Sketcher.Constraint("Equal", 20, 21))
sketch9.addConstraint(Sketcher.Constraint("Equal", 21, 22))
sketch9.addConstraint(Sketcher.Constraint("Equal", 22, 23))
sketch9.addConstraint(Sketcher.Constraint("Parallel", 6, 11))
sketch9.addConstraint(Sketcher.Constraint("Parallel", 11, 15))
sketch9.addConstraint(Sketcher.Constraint("Horizontal", 20, 3, 21, 3))
sketch9.addConstraint(Sketcher.Constraint("Horizontal", 22, 3, 23, 3))
sketch9.addConstraint(Sketcher.Constraint("Horizontal", 1, 2, 4, 2))
sketch9.addConstraint(Sketcher.Constraint("Vertical", 21, 3, 22, 3))
sketch9.addConstraint(Sketcher.Constraint("Vertical", 20, 3, 23, 3))
sketch9.addConstraint(Sketcher.Constraint("Vertical", 7, 2, 16, 2))
sketch9.addConstraint(Sketcher.Constraint("Vertical", 9, 2, 18, 2))
sketch9.addConstraint(Sketcher.Constraint("Equal", 1, 3))
sketch9.addConstraint(Sketcher.Constraint("Equal", 3, 8))
sketch9.addConstraint(Sketcher.Constraint("Equal", 18, 0))
sketch9.addConstraint(Sketcher.Constraint("Equal", 10, 2))
sketch9.addConstraint(Sketcher.Constraint("Equal", 0, 7))
sketch9.addConstraint(Sketcher.Constraint("Equal", 4, 9))
sketch9.addConstraint(Sketcher.Constraint("Equal", 9, 17))
sketch9.addConstraint(Sketcher.Constraint("Diameter", 20, 15.0))
sketch9.addConstraint(Sketcher.Constraint("DistanceX", 1, 1, 1, 2, 30.0))
sketch9.addConstraint(Sketcher.Constraint("DistanceX", 5, 2, 5, 1, 13.0))
sketch9.addConstraint(Sketcher.Constraint("DistanceX", 10, 1, 10, 2, 19.0))
sketch9.addConstraint(Sketcher.Constraint("DistanceX", 14, 2, 14, 1, 63.0))
sketch9.addConstraint(Sketcher.Constraint("DistanceY", 12, 1, 12, 2, 41.0))
sketch9.addConstraint(Sketcher.Constraint("DistanceX", -1, 1, 20, 3, 10.0))
sketch9.addConstraint(Sketcher.Constraint("DistanceY", -1, 1, 22, 3, 10.0))
sketch9.addConstraint(Sketcher.Constraint("DistanceY", -1, 1, 11, 2, 80.0))
sketch9.addConstraint(Sketcher.Constraint("DistanceY", 12, 2, 21, 3, 19.0))
sketch9.addConstraint(Sketcher.Constraint("DistanceY", 3, 2, 12, 2, 10.0))
sketch9.addConstraint(Sketcher.Constraint("DistanceX", 13, 2, 12, 2, 19.0))
sketch9.addConstraint(Sketcher.Constraint("DistanceX", 0, 2, 14, 2, 13.0))
sketch9.addConstraint(Sketcher.Constraint("DistanceY", 16, 2, 7, 2, 10.0))
sketch9.addConstraint(Sketcher.Constraint("DistanceX", -1, 1, 21, 3, 140.0))
sketch9.addConstraint(Sketcher.Constraint("DistanceX", -1, 1, 0, 2, 25.5))
sketch9.addConstraint(Sketcher.Constraint("Distance", 11, 13.319))
pad7 = body.newObject("PartDesign::Pad", "Pad006")
pad7.Profile = sketch9
pad7.Length = 3

doc.recompute()
